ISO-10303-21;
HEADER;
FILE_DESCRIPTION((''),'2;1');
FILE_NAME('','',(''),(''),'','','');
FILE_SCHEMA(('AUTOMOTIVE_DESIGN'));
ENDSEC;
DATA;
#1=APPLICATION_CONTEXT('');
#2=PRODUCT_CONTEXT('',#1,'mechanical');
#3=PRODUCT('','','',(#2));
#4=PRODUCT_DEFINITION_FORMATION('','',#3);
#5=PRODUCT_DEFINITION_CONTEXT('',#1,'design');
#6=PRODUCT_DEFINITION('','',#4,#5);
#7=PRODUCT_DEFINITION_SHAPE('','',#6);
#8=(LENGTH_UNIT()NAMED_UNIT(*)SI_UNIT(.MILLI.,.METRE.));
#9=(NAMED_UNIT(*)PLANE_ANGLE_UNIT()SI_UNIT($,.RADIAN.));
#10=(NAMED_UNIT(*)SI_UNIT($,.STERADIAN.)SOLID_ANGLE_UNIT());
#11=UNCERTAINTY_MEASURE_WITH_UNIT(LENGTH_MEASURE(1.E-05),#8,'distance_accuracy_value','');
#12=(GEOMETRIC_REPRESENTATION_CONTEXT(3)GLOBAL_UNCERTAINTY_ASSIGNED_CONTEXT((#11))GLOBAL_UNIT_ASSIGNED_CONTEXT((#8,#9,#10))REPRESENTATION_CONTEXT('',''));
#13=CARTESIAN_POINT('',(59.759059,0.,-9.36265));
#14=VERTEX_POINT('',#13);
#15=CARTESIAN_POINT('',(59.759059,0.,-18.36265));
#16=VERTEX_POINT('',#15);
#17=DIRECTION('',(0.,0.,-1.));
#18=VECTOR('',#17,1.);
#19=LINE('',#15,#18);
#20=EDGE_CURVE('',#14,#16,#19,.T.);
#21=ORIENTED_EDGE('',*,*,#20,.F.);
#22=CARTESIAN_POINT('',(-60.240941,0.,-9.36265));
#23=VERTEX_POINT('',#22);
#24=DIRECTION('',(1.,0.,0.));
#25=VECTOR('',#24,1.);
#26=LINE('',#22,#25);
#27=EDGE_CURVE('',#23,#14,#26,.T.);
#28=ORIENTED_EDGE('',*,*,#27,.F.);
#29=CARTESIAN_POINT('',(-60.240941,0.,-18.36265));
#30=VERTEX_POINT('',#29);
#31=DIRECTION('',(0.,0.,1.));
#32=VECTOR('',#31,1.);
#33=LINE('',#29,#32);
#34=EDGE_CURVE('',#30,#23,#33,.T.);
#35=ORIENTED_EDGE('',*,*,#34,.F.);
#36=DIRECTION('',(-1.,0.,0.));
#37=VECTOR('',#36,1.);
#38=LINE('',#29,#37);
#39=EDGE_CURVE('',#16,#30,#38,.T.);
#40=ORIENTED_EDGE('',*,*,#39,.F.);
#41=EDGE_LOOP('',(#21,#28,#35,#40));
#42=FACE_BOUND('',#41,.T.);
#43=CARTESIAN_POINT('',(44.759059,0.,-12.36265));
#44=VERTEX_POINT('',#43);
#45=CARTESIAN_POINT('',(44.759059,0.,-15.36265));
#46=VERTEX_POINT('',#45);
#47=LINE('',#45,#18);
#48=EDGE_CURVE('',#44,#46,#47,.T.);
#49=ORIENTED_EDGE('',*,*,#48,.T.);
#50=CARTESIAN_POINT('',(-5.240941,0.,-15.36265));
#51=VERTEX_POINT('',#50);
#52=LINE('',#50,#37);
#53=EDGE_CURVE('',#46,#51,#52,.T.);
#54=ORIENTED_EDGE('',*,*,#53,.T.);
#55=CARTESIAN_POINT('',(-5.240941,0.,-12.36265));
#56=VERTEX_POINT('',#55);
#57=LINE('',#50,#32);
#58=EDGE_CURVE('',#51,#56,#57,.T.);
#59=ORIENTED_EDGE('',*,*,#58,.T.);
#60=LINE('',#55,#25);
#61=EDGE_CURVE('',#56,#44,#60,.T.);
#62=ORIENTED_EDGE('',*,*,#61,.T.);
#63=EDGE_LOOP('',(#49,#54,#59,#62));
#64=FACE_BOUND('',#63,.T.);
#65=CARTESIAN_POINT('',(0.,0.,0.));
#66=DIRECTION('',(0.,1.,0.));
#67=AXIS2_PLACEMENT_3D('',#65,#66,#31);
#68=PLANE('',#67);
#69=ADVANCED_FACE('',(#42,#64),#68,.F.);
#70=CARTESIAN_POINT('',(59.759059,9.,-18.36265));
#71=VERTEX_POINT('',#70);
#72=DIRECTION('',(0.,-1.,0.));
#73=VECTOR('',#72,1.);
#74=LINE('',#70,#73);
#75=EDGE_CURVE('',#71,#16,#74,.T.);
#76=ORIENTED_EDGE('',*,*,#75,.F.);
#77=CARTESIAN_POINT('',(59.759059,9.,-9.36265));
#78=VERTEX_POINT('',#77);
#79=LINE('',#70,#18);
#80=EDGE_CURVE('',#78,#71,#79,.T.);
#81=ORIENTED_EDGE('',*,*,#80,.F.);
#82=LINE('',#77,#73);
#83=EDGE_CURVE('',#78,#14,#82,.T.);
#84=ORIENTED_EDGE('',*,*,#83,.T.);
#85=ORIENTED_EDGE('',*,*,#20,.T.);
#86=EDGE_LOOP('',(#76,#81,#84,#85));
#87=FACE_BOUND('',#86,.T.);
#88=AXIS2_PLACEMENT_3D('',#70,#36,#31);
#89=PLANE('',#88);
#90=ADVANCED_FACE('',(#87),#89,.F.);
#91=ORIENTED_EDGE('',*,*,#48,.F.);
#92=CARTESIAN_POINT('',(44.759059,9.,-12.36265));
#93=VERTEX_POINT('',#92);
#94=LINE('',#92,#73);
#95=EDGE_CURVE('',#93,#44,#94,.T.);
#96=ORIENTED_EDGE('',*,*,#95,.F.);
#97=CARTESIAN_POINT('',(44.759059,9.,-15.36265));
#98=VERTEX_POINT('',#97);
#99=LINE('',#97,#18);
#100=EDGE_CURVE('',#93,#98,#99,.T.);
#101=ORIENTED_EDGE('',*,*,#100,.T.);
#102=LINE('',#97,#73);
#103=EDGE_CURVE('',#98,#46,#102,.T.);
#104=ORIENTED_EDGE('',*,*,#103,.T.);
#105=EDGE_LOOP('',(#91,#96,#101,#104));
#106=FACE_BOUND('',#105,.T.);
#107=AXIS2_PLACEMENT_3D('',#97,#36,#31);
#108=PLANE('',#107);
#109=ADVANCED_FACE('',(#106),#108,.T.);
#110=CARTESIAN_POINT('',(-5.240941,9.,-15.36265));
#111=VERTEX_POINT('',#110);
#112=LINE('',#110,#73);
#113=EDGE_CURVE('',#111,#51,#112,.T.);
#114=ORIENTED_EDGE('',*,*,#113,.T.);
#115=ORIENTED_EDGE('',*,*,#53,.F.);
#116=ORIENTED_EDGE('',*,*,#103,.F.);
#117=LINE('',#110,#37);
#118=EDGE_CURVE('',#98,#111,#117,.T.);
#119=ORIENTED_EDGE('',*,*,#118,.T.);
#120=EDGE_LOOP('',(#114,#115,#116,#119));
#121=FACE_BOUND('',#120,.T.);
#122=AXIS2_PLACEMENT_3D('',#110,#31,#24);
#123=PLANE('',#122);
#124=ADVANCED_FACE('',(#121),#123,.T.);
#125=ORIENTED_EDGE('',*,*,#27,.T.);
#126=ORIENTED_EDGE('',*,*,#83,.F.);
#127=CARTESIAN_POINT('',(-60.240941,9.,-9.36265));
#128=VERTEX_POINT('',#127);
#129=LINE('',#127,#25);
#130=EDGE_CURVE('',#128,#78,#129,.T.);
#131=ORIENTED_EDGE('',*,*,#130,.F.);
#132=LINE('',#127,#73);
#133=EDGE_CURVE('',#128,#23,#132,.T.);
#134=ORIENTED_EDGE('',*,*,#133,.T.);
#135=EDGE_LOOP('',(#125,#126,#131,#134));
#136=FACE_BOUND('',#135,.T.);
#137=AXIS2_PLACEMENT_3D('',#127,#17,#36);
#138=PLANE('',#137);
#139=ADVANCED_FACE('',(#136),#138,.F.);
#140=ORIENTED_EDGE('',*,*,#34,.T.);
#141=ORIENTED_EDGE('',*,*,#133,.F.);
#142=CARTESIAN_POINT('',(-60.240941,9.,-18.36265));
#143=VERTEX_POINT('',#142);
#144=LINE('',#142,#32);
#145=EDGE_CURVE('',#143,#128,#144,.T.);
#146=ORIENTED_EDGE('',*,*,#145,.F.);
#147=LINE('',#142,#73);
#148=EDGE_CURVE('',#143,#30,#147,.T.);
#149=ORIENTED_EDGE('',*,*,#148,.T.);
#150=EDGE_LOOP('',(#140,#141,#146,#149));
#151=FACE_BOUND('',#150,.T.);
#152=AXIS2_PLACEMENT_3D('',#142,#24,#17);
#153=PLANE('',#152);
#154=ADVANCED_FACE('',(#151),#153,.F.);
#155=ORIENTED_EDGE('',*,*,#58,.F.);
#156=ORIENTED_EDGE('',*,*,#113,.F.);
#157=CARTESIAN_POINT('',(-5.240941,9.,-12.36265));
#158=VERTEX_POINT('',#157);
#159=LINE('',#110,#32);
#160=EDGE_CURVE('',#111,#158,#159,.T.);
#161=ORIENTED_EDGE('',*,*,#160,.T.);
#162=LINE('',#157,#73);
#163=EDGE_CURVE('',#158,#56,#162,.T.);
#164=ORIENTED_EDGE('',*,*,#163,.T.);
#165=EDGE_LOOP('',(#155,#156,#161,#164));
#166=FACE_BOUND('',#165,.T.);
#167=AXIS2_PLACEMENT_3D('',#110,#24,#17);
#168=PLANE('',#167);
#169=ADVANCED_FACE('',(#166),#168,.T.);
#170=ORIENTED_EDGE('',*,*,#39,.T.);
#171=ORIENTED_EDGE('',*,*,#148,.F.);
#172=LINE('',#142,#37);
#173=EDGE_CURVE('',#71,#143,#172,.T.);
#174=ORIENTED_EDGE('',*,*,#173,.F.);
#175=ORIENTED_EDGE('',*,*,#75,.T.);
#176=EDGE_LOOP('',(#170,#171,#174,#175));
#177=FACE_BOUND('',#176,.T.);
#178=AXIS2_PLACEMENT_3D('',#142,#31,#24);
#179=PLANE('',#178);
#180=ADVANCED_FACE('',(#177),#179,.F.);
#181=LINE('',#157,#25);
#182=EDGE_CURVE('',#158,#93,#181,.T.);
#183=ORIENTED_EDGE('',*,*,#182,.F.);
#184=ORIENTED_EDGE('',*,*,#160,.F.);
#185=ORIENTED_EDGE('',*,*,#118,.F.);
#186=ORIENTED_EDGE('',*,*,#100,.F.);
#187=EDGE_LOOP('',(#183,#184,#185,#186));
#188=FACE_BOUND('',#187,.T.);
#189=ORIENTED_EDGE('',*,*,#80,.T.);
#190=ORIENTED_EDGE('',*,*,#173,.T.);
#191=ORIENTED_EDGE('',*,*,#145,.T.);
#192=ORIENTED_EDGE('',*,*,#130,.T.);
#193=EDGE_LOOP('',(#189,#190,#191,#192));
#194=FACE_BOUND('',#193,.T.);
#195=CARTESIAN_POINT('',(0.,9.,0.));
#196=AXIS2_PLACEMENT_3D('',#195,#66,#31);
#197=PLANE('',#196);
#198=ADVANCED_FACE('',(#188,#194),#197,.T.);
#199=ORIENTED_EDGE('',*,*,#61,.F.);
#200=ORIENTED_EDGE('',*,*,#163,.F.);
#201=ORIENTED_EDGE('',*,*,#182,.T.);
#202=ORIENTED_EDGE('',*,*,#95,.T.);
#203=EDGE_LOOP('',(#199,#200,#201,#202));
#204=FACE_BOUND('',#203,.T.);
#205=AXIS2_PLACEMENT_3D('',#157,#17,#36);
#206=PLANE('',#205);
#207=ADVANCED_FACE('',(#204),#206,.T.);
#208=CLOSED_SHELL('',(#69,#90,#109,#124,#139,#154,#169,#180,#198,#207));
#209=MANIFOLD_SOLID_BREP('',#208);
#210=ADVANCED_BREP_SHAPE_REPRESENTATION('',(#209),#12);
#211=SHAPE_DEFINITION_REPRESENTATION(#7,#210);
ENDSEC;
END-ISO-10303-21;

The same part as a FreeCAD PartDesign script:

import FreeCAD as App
import Part
import Sketcher
from FreeCAD import Vector

doc = App.newDocument("Part")
params = doc.addObject("Spreadsheet::Sheet", "Params")
for row, (alias, value) in enumerate([
    ("sketch1_width", "120 mm"),
    ("sketch1_width2", "50 mm"),
    ("sketch1_height", "9 mm"),
    ("sketch1_height2", "3 mm"),
    ("pad1_length", "9 mm"),
], start=1):
    params.set(f"A{row}", alias)
    params.set(f"B{row}", "=" + value)
    params.setAlias(f"B{row}", alias)

body = doc.addObject("PartDesign::Body", "Body")

# Sketch on XZ plane
sketch1 = doc.addObject("Sketcher::SketchObject", "Sketch")
body.addObject(sketch1)
sketch1.AttachmentSupport = (doc.XZ_Plane, [""])
sketch1.MapMode = "FlatFace"
sketch1.addGeometry([
    Part.LineSegment(Vector(-60.2, -18.4, 0), Vector(-60.2, -9.4, 0)),  # 0
    Part.LineSegment(Vector(-60.2, -9.4, 0), Vector(59.8, -9.4, 0)),  # 1
    Part.LineSegment(Vector(59.8, -9.4, 0), Vector(59.8, -18.4, 0)),  # 2
    Part.LineSegment(Vector(59.8, -18.4, 0), Vector(-60.2, -18.4, 0)),  # 3
    Part.LineSegment(Vector(44.8, -12.4, 0), Vector(-5.2, -12.4, 0)),  # 4
    Part.LineSegment(Vector(-5.2, -12.4, 0), Vector(-5.2, -15.4, 0)),  # 5
    Part.LineSegment(Vector(-5.2, -15.4, 0), Vector(44.8, -15.4, 0)),  # 6
    Part.LineSegment(Vector(44.8, -15.4, 0), Vector(44.8, -12.4, 0)),  # 7
], False)
sketch1.addConstraint([
    Sketcher.Constraint("Coincident", 0, 2, 1, 1),
    Sketcher.Constraint("Coincident", 1, 2, 2, 1),
    Sketcher.Constraint("Coincident", 2, 2, 3, 1),
    Sketcher.Constraint("Coincident", 3, 2, 0, 1),
    Sketcher.Constraint("Coincident", 4, 2, 5, 1),
    Sketcher.Constraint("Coincident", 5, 2, 6, 1),
    Sketcher.Constraint("Coincident", 6, 2, 7, 1),
    Sketcher.Constraint("Coincident", 7, 2, 4, 1),
    Sketcher.Constraint("Vertical", 0),
    Sketcher.Constraint("Horizontal", 1),
    Sketcher.Constraint("Vertical", 2),
    Sketcher.Constraint("Horizontal", 3),
    Sketcher.Constraint("Horizontal", 4),
    Sketcher.Constraint("Vertical", 5),
    Sketcher.Constraint("Horizontal", 6),
    Sketcher.Constraint("Vertical", 7),
    Sketcher.Constraint("DistanceX", 1, 1, 1, 2, 120.0),
    Sketcher.Constraint("DistanceX", 4, 2, 4, 1, 50.0),
    Sketcher.Constraint("DistanceY", 0, 1, 0, 2, 9.0),
    Sketcher.Constraint("DistanceY", 5, 2, 5, 1, 3.0),
    Sketcher.Constraint("DistanceX", 0, 2, 4, 2, 55.0),
    Sketcher.Constraint("DistanceY", 4, 2, 0, 2, 3.0),
    Sketcher.Constraint("DistanceX", 0, 2, -1, 1, 60.240941),
    Sketcher.Constraint("DistanceY", 0, 2, -1, 1, 9.36265),
])
sketch1.setExpression("Constraints[16]", "Params.sketch1_width")
sketch1.setExpression("Constraints[17]", "Params.sketch1_width2")
sketch1.setExpression("Constraints[18]", "Params.sketch1_height")
sketch1.setExpression("Constraints[19]", "Params.sketch1_height2")
pad1 = doc.addObject("PartDesign::Pad", "Pad")
body.addObject(pad1)
pad1.Profile = sketch1
pad1.setExpression("Length", "Params.pad1_length")
pad1.Reversed = True

doc.recompute()
